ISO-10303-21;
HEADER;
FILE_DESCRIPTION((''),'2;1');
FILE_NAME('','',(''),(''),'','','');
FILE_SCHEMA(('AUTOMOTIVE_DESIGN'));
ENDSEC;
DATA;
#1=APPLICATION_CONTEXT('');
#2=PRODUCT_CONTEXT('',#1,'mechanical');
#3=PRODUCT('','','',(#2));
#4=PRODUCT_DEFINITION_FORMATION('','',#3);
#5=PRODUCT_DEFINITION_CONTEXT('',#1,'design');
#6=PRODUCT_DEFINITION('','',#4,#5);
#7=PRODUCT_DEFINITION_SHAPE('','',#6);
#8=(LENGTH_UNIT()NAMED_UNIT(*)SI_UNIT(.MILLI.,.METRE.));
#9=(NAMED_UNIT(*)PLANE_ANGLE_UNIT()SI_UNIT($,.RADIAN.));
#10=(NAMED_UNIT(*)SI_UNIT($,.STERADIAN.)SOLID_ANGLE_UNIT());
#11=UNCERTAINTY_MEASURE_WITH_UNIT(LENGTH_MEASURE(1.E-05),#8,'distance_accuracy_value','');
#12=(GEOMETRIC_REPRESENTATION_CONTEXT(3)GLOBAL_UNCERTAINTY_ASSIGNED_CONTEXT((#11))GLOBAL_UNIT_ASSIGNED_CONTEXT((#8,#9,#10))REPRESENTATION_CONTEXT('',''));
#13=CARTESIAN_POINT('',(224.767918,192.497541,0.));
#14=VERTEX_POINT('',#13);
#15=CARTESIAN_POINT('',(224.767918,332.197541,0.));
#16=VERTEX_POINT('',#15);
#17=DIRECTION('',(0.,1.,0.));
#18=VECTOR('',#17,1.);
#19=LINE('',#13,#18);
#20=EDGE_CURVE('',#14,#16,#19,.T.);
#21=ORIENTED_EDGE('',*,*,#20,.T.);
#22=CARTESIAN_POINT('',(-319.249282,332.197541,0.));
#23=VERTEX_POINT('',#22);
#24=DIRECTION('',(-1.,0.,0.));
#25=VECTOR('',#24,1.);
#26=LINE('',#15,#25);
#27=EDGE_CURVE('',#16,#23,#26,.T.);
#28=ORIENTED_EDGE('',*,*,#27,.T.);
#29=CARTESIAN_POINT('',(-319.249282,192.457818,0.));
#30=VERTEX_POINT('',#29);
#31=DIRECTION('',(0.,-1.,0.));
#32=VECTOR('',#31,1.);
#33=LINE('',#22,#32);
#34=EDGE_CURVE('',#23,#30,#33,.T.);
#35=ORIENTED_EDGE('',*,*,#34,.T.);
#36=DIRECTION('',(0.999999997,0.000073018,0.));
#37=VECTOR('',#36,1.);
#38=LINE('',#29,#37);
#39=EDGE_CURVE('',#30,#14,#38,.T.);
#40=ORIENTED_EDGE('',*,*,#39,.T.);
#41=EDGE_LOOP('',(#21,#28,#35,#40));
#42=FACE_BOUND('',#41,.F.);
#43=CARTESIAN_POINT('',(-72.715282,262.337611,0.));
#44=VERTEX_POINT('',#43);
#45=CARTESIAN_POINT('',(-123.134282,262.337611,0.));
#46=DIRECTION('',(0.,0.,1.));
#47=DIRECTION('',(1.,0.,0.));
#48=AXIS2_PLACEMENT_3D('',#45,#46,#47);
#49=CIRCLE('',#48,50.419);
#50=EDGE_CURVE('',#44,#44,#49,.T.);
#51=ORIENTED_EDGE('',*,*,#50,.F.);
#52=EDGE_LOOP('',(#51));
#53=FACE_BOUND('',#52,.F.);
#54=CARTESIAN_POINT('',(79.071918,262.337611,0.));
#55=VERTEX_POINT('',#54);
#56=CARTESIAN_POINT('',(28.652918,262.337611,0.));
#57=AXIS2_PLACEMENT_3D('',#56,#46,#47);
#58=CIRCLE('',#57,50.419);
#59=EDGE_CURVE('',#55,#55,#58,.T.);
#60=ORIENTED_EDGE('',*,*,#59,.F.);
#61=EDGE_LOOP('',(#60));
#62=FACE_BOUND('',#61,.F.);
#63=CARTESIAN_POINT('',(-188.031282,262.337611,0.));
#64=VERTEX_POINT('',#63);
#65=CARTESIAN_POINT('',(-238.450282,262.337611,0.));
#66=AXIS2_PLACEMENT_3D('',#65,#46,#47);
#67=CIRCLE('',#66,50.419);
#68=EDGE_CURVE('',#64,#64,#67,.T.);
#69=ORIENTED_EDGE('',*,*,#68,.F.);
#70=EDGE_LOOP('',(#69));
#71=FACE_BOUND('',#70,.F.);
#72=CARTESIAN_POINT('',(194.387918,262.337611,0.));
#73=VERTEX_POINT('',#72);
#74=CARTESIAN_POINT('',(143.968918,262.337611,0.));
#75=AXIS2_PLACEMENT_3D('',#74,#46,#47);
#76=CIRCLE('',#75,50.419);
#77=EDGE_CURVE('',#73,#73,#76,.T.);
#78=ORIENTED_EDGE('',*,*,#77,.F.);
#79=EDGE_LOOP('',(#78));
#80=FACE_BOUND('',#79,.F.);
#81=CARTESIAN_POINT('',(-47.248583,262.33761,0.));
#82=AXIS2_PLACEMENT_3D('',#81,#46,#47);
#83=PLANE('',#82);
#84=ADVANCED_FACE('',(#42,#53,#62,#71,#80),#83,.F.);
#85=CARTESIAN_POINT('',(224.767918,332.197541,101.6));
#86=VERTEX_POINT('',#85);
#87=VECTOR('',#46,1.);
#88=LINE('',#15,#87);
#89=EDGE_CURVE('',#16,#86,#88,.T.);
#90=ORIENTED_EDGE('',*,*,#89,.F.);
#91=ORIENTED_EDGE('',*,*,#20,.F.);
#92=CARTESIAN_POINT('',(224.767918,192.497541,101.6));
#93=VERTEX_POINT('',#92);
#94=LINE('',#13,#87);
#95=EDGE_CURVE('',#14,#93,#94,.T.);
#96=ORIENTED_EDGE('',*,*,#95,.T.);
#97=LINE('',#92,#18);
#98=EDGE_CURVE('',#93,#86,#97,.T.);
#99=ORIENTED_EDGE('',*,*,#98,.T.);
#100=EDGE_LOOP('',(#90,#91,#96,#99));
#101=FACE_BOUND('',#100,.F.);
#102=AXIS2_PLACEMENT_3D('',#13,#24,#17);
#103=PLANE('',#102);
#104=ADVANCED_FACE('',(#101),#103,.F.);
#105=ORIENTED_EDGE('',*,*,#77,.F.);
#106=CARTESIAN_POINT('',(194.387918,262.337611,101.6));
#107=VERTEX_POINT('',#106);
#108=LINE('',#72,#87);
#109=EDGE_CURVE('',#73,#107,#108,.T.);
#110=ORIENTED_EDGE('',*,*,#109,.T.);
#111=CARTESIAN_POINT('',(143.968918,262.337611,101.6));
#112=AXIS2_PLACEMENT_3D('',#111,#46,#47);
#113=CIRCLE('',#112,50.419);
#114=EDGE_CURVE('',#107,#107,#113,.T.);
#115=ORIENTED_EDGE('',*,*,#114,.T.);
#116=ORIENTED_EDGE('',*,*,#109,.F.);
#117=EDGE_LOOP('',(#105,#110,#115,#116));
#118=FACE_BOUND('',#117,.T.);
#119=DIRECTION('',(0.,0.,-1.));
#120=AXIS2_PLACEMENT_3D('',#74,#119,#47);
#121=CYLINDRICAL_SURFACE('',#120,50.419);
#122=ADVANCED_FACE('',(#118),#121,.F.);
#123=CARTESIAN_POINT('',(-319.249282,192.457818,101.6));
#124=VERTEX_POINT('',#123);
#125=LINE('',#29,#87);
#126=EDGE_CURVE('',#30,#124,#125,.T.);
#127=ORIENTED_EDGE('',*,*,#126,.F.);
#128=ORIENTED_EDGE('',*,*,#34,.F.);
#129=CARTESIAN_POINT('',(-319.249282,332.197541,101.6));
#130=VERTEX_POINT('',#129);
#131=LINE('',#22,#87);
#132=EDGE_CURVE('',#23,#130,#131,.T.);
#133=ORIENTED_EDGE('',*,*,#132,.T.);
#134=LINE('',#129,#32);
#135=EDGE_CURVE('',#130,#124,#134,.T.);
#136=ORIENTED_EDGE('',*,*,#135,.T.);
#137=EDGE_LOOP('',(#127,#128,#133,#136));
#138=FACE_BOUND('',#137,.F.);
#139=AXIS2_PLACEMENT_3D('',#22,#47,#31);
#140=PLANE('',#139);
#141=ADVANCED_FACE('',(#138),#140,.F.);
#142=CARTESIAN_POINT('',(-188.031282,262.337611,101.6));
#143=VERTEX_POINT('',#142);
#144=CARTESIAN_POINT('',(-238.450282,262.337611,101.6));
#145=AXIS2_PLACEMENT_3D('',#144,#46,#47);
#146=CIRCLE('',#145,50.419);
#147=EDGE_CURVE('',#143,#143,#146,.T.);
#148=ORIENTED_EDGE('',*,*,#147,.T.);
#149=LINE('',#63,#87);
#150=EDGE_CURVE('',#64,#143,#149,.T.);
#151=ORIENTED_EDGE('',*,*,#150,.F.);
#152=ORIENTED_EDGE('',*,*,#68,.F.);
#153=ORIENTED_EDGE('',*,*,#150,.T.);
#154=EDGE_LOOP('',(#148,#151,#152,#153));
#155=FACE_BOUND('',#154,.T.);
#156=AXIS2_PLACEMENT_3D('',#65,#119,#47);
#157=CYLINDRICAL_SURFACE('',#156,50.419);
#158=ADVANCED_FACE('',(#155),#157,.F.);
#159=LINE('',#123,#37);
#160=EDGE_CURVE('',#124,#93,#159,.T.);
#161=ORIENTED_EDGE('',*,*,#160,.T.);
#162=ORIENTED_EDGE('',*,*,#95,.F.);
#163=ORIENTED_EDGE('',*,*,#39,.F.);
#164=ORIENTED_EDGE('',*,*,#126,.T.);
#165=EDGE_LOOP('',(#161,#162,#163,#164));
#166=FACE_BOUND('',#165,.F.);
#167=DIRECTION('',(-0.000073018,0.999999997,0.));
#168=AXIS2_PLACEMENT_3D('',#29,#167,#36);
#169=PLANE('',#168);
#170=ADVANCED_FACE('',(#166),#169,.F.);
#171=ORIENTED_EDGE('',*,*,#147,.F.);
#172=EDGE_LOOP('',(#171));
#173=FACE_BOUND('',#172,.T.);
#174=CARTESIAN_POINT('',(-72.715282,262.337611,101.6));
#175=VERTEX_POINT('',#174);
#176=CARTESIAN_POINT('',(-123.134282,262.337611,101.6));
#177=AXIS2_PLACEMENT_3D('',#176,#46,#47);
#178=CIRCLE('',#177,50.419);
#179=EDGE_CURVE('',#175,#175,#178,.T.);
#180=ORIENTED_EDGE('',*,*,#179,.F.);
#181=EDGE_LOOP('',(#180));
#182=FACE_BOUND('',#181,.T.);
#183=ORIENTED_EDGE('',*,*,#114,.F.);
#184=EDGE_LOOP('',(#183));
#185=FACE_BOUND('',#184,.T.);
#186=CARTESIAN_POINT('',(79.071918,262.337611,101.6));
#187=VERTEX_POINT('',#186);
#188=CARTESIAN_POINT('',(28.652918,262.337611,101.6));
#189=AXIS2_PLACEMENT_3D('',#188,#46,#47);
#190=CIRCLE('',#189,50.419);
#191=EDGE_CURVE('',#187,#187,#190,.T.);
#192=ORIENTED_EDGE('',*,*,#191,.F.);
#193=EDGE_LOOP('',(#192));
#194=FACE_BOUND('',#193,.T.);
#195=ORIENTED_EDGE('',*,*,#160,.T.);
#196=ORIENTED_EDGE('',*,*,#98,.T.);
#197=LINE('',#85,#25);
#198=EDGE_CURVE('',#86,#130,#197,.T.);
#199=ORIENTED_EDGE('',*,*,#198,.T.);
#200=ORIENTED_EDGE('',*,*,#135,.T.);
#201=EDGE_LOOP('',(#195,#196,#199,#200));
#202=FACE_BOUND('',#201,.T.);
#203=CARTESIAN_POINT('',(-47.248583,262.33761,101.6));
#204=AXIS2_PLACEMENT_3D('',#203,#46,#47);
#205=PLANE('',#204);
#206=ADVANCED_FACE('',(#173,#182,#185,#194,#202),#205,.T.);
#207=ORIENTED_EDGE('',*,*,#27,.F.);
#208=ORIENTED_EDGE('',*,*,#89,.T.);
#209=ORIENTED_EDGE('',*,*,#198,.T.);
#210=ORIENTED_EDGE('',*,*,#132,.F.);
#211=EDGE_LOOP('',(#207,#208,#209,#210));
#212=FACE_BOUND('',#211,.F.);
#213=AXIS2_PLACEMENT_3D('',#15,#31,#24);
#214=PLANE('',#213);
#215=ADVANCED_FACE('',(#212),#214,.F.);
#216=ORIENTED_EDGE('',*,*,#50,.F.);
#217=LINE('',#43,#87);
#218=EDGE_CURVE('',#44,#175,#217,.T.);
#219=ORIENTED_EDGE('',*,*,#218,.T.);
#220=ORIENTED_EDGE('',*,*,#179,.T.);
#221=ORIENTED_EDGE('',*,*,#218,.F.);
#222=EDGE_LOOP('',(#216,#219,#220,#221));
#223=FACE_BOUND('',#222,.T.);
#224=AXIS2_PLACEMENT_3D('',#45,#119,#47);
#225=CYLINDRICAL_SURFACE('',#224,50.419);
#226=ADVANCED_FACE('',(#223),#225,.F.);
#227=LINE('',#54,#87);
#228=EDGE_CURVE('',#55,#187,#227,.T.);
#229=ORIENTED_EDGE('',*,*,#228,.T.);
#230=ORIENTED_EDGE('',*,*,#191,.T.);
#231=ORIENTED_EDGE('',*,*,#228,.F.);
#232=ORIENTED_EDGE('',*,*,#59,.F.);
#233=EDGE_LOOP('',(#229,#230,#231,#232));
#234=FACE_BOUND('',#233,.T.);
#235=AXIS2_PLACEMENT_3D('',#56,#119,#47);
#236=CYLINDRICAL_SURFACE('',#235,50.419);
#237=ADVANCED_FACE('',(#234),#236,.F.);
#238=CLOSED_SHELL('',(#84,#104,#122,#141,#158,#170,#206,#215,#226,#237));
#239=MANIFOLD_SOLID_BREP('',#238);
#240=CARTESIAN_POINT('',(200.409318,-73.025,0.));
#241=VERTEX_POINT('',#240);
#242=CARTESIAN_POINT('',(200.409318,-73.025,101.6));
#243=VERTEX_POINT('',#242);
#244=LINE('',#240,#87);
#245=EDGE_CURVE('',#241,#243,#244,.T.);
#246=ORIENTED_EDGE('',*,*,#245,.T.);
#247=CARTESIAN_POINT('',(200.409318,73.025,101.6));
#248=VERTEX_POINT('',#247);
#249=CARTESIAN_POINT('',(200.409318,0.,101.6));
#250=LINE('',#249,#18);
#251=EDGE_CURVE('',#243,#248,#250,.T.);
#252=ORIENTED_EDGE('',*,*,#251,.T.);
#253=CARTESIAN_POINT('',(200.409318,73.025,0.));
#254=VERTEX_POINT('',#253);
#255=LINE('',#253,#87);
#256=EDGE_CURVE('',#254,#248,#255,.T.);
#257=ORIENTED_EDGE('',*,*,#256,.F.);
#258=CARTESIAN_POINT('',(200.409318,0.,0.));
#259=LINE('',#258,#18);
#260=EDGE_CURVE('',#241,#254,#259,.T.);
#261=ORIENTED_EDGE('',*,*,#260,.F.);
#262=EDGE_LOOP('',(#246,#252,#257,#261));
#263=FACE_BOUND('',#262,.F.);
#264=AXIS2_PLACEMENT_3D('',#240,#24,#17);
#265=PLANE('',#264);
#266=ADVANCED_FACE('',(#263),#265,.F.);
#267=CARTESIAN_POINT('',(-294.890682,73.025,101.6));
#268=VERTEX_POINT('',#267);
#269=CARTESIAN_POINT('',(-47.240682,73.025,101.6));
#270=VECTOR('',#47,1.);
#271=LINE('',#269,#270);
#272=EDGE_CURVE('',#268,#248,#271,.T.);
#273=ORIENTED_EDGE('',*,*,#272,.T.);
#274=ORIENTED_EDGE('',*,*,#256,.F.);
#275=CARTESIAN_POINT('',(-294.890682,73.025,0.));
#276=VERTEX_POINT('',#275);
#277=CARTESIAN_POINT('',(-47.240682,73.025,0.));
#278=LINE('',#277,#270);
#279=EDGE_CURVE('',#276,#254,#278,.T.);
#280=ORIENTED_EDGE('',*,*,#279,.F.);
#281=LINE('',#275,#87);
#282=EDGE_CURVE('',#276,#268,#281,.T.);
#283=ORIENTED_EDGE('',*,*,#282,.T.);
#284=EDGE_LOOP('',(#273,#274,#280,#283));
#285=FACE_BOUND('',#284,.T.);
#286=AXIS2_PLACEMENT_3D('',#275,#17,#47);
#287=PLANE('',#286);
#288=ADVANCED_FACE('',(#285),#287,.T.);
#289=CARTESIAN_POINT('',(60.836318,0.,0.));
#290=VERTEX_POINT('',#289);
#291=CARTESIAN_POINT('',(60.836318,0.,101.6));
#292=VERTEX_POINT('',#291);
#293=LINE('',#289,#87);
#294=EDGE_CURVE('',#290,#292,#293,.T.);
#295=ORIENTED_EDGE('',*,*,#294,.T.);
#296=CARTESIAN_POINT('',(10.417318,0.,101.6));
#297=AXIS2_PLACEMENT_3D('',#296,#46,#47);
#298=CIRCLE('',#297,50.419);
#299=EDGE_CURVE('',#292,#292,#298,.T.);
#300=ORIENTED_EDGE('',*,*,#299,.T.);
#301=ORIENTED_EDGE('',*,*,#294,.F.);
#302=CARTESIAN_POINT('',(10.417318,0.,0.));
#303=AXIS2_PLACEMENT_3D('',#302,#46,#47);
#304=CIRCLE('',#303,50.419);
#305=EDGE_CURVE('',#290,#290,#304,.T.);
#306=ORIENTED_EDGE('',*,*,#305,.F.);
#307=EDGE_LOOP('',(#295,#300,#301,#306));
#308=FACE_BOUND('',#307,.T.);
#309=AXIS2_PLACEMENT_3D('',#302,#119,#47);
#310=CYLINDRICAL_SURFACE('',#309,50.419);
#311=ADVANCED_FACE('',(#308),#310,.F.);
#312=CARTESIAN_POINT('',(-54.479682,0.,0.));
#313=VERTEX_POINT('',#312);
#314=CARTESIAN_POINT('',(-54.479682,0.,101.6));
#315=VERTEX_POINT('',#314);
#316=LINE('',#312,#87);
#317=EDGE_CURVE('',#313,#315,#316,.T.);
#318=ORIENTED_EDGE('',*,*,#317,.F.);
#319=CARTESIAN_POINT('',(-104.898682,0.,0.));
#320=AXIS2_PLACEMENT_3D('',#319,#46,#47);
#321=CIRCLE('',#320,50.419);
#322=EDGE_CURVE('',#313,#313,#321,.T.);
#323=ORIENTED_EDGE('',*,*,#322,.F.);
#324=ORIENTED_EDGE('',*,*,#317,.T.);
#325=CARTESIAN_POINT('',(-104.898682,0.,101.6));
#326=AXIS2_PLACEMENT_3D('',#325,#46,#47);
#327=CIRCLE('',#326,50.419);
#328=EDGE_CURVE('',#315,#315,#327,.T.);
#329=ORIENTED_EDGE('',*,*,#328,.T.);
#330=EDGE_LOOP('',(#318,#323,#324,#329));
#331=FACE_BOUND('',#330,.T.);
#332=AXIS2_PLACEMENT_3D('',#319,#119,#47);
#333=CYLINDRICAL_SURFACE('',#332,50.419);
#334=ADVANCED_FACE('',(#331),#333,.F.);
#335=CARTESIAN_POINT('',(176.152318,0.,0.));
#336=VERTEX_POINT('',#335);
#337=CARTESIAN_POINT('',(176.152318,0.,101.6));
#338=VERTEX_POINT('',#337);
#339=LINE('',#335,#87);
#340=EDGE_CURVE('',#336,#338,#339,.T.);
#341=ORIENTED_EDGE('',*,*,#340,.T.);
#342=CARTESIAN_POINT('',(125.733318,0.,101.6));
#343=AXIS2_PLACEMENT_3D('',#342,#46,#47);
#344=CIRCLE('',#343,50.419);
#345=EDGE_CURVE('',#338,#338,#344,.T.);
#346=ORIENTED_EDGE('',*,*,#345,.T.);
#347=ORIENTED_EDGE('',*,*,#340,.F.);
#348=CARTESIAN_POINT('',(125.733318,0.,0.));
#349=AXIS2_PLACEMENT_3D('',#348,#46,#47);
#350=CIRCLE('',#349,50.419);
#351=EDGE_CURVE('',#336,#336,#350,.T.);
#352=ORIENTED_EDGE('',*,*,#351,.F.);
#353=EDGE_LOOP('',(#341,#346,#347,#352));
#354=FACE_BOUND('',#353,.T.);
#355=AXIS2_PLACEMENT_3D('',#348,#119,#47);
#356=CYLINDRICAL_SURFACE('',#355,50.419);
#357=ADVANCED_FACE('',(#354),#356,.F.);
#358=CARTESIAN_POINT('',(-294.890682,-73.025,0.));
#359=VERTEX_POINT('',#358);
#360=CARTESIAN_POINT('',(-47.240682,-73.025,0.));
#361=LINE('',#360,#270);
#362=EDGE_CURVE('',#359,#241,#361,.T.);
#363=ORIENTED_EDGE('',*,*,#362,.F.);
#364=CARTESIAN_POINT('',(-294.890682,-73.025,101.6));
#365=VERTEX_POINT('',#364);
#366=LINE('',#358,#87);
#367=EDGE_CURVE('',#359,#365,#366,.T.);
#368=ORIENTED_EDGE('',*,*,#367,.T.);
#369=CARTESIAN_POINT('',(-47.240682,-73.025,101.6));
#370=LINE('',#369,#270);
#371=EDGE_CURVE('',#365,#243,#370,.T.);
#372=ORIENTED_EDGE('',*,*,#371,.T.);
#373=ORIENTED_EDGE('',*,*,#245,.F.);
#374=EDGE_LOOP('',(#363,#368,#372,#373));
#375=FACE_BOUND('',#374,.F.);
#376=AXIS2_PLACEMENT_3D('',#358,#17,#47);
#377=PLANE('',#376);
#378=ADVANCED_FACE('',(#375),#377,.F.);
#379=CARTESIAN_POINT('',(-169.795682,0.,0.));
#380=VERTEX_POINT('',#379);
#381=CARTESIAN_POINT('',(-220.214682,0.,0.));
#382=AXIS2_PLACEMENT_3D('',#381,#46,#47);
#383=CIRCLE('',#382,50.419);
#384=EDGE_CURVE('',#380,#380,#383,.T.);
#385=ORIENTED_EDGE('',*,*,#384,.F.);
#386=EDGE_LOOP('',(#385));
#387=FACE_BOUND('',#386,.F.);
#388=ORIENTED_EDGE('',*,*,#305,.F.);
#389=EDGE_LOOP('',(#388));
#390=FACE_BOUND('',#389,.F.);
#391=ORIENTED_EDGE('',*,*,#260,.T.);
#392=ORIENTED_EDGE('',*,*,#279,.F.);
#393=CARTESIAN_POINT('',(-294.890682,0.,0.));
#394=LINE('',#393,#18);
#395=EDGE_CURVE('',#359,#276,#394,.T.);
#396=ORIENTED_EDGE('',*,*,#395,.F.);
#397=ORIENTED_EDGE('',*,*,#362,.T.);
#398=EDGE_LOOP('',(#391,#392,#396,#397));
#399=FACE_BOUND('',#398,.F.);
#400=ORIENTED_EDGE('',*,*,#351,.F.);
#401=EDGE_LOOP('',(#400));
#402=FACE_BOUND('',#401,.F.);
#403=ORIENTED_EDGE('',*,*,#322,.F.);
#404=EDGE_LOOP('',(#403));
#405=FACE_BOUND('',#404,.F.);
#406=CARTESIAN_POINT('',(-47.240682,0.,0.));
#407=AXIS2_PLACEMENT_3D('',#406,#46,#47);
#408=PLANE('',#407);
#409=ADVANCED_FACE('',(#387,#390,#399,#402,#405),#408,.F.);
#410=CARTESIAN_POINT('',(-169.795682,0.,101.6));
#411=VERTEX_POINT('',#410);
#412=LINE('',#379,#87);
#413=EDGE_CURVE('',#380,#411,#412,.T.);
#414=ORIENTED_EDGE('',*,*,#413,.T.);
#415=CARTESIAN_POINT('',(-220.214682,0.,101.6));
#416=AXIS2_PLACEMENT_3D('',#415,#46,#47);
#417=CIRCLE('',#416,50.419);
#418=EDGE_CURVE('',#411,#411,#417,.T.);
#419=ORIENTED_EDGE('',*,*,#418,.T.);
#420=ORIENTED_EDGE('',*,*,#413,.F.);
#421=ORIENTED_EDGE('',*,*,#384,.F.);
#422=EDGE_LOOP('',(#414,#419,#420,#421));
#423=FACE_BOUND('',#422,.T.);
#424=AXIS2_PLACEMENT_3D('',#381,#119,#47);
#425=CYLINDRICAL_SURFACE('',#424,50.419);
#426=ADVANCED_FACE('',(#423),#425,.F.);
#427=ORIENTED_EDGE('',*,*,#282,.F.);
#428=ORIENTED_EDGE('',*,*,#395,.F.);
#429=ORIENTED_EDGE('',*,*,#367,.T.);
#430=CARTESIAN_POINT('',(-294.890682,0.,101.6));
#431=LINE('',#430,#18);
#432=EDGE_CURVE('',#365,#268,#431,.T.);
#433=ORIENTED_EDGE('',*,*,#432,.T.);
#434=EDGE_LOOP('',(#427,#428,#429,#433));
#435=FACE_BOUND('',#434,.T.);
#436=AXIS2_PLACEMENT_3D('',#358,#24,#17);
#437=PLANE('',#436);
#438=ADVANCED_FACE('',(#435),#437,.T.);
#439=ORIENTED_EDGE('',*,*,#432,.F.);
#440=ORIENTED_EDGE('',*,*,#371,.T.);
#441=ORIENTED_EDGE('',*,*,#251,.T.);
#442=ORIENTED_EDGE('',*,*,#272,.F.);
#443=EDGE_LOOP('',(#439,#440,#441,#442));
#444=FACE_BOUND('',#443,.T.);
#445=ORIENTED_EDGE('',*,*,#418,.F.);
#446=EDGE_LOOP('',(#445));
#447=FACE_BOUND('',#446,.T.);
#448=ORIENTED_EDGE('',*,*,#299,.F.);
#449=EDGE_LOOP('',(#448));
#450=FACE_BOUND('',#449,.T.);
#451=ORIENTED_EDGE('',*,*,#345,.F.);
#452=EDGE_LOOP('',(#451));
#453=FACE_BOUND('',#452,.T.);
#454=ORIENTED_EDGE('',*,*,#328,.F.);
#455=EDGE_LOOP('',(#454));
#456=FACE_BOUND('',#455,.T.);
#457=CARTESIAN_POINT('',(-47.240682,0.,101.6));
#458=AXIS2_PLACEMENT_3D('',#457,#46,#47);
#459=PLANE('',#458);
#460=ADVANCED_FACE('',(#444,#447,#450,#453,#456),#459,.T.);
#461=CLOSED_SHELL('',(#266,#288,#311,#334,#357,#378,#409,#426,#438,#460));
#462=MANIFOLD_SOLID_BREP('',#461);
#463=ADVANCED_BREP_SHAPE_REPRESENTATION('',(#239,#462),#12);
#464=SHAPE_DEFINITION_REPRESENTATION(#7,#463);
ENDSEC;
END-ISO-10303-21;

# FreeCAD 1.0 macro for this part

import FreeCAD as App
import Part
import Sketcher
from FreeCAD import Vector
Q = App.Units.Quantity


def add_polygon(sketch, points):
    """Adds a closed chain of lines whose ends are joined by coincident constraints."""
    first, n = sketch.GeometryCount, len(points)
    for a, b in zip(points, points[1:] + points[:1]):
        sketch.addGeometry(Part.LineSegment(App.Vector(*a, 0), App.Vector(*b, 0)), False)
    for i in range(n):
        sketch.addConstraint(Sketcher.Constraint("Coincident", first + i, 2, first + (i + 1) % n, 1))

doc = App.newDocument("Part")
body = doc.addObject("PartDesign::Body", "Body")

# Sketch on XY plane
sketch1 = body.newObject("Sketcher::SketchObject", "Sketch")
sketch1.AttachmentSupport = (doc.getObject("XY_Plane"), [""])
sketch1.MapMode = "FlatFace"
add_polygon(sketch1, [(-319.249282, 332.197541), (-319.249282, 192.457818), (224.767918, 192.497541), (224.767918, 332.197541)])  # lines 0-3
sketch1.addGeometry(Part.Circle(Vector(-238.450282, 262.337611, 0), Vector(0, 0, 1), 50.419), False)  # 4
sketch1.addGeometry(Part.Circle(Vector(-123.134282, 262.337611, 0), Vector(0, 0, 1), 50.419), False)  # 5
sketch1.addGeometry(Part.Circle(Vector(28.652918, 262.337611, 0), Vector(0, 0, 1), 50.419), False)  # 6
sketch1.addGeometry(Part.Circle(Vector(143.968918, 262.337611, 0), Vector(0, 0, 1), 50.419), False)  # 7
sketch1.addConstraint(Sketcher.Constraint("Vertical", 0))
sketch1.addConstraint(Sketcher.Constraint("Vertical", 2))
sketch1.addConstraint(Sketcher.Constraint("Horizontal", 3))
sketch1.addConstraint(Sketcher.Constraint("Equal", 4, 5))
sketch1.addConstraint(Sketcher.Constraint("Equal", 5, 6))
sketch1.addConstraint(Sketcher.Constraint("Equal", 6, 7))
sketch1.addConstraint(Sketcher.Constraint("Horizontal", 4, 3, 5, 3))
sketch1.addConstraint(Sketcher.Constraint("Horizontal", 5, 3, 6, 3))
sketch1.addConstraint(Sketcher.Constraint("Horizontal", 6, 3, 7, 3))
sketch1.addConstraint(Sketcher.Constraint("Diameter", 4, Q("3.97 in")))
sketch1.addConstraint(Sketcher.Constraint("DistanceY", 2, 1, 2, 2, Q("5.5 in")))
sketch1.addConstraint(Sketcher.Constraint("DistanceX", 3, 2, 3, 1, Q("21.418 in")))
sketch1.addConstraint(Sketcher.Constraint("DistanceX", 4, 3, 5, 3, Q("4.54 in")))
sketch1.addConstraint(Sketcher.Constraint("DistanceX", 6, 3, 7, 3, Q("4.54 in")))
sketch1.addConstraint(Sketcher.Constraint("DistanceX", 5, 3, 6, 3, Q("151.7872 mm")))
sketch1.addConstraint(Sketcher.Constraint("DistanceX", 0, 2, 4, 3, Q("80.799 mm")))
sketch1.addConstraint(Sketcher.Constraint("DistanceY", 0, 2, 0, 1, Q("139.739723 mm")))
sketch1.addConstraint(Sketcher.Constraint("DistanceX", 4, 3, -1, 1, Q("238.450282 mm")))
sketch1.addConstraint(Sketcher.Constraint("DistanceY", -1, 1, 4, 3, Q("262.337611 mm")))
sketch1.addConstraint(Sketcher.Constraint("DistanceY", -1, 1, 0, 2, Q("192.457818 mm")))
pad1 = body.newObject("PartDesign::Pad", "Pad")
pad1.Profile = sketch1
pad1.Length = Q("4 in")
body2 = doc.addObject("PartDesign::Body", "Body001")

# Sketch on XY plane
sketch2 = body2.newObject("Sketcher::SketchObject", "Sketch001")
sketch2.AttachmentSupport = (doc.getObject("XY_Plane001"), [""])
sketch2.MapMode = "FlatFace"
add_polygon(sketch2, [(-294.890682, 73.025), (-294.890682, -73.025), (200.409318, -73.025), (200.409318, 73.025)])  # lines 0-3
sketch2.addGeometry(Part.Circle(Vector(-220.214682, 0, 0), Vector(0, 0, 1), 50.419), False)  # 4
sketch2.addGeometry(Part.Circle(Vector(-104.898682, 0, 0), Vector(0, 0, 1), 50.419), False)  # 5
sketch2.addGeometry(Part.Circle(Vector(10.417318, 0, 0), Vector(0, 0, 1), 50.419), False)  # 6
sketch2.addGeometry(Part.Circle(Vector(125.733318, 0, 0), Vector(0, 0, 1), 50.419), False)  # 7
sketch2.addConstraint(Sketcher.Constraint("Vertical", 0))
sketch2.addConstraint(Sketcher.Constraint("Horizontal", 1))
sketch2.addConstraint(Sketcher.Constraint("Vertical", 2))
sketch2.addConstraint(Sketcher.Constraint("Horizontal", 3))
sketch2.addConstraint(Sketcher.Constraint("Equal", 4, 5))
sketch2.addConstraint(Sketcher.Constraint("Equal", 5, 6))
sketch2.addConstraint(Sketcher.Constraint("Equal", 6, 7))
sketch2.addConstraint(Sketcher.Constraint("PointOnObject", 4, 3, -1))
sketch2.addConstraint(Sketcher.Constraint("PointOnObject", 5, 3, -1))
sketch2.addConstraint(Sketcher.Constraint("PointOnObject", 6, 3, -1))
sketch2.addConstraint(Sketcher.Constraint("PointOnObject", 7, 3, -1))
sketch2.addConstraint(Sketcher.Constraint("Diameter", 4, Q("3.97 in")))
sketch2.addConstraint(Sketcher.Constraint("DistanceX", 1, 1, 1, 2, Q("19.5 in")))
sketch2.addConstraint(Sketcher.Constraint("DistanceY", 0, 2, 0, 1, Q("5.75 in")))
sketch2.addConstraint(Sketcher.Constraint("DistanceX", 4, 3, 5, 3, Q("4.54 in")))
sketch2.addConstraint(Sketcher.Constraint("DistanceX", 5, 3, 6, 3, Q("4.54 in")))
sketch2.addConstraint(Sketcher.Constraint("DistanceX", 6, 3, 7, 3, Q("4.54 in")))
sketch2.addConstraint(Sketcher.Constraint("DistanceX", 0, 2, 4, 3, Q("2.94 in")))
sketch2.addConstraint(Sketcher.Constraint("DistanceY", 0, 2, -1, 1, Q("2.875 in")))
sketch2.addConstraint(Sketcher.Constraint("DistanceX", 5, 3, -1, 1, Q("104.898682 mm")))
pad2 = body2.newObject("PartDesign::Pad", "Pad001")
pad2.Profile = sketch2
pad2.Length = Q("4 in")

doc.recompute()
